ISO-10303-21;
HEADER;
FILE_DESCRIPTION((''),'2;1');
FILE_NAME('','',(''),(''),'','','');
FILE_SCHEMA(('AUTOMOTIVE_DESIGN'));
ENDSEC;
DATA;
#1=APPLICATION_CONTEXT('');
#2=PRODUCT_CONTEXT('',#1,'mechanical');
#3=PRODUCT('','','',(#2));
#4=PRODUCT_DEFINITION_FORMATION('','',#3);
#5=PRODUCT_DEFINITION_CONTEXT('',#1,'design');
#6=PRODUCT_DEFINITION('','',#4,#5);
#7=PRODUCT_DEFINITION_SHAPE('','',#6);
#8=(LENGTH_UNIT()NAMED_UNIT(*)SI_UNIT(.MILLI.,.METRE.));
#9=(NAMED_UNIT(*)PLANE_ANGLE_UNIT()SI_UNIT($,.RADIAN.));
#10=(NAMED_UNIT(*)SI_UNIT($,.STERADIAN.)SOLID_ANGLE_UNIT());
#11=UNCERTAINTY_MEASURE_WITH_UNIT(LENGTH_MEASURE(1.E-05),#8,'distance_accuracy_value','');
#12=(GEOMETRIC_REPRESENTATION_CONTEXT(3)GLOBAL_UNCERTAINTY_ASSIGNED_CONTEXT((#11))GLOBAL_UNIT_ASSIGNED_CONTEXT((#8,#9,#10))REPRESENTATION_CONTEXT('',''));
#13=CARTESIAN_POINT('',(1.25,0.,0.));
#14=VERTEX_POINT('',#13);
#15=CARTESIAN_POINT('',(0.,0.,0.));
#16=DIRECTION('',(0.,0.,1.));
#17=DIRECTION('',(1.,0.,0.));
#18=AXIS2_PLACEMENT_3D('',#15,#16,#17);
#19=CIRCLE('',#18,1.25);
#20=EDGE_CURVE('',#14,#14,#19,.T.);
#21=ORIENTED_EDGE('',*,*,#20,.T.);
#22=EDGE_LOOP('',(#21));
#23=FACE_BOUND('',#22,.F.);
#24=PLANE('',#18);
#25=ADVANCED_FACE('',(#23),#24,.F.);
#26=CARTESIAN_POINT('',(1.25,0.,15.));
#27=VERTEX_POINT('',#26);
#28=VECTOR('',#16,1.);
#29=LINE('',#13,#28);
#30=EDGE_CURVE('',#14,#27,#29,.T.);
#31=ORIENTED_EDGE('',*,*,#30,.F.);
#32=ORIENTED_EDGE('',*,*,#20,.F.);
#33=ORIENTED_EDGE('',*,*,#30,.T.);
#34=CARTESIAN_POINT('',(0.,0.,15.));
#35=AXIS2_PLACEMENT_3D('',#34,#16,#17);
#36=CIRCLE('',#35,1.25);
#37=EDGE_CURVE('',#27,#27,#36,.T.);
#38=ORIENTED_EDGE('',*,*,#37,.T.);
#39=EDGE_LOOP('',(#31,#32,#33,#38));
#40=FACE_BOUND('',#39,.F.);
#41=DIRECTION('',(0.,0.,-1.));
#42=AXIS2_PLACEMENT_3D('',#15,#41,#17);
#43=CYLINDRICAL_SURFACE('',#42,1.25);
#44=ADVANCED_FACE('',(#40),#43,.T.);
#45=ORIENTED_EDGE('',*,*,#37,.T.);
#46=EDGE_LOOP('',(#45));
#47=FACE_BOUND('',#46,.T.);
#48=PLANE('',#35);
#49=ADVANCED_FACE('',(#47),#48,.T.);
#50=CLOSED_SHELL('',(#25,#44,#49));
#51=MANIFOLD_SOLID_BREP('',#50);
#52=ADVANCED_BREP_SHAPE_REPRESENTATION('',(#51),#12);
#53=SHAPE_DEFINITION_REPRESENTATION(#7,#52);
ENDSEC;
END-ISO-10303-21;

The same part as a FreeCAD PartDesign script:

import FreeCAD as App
import Part
import Sketcher
Q = App.Units.Quantity

doc = App.newDocument("Part")
body = doc.addObject("PartDesign::Body", "Body")

# Sketch on XY plane
sketch1 = body.newObject("Sketcher::SketchObject", "Sketch")
sketch1.AttachmentSupport = (doc.getObject("XY_Plane"), [""])
sketch1.MapMode = "FlatFace"
sketch1.addGeometry(Part.Circle(App.Vector(0, 0, 0), App.Vector(0, 0, 1), 1.2), False)
sketch1.addConstraint(Sketcher.Constraint("Coincident", 0, 3, -1, 1))
sketch1.addConstraint(Sketcher.Constraint("Diameter", 0, Q("2.5 mm")))
pad1 = body.newObject("PartDesign::Pad", "Pad")
pad1.Profile = sketch1
pad1.Length = 15

doc.recompute()
